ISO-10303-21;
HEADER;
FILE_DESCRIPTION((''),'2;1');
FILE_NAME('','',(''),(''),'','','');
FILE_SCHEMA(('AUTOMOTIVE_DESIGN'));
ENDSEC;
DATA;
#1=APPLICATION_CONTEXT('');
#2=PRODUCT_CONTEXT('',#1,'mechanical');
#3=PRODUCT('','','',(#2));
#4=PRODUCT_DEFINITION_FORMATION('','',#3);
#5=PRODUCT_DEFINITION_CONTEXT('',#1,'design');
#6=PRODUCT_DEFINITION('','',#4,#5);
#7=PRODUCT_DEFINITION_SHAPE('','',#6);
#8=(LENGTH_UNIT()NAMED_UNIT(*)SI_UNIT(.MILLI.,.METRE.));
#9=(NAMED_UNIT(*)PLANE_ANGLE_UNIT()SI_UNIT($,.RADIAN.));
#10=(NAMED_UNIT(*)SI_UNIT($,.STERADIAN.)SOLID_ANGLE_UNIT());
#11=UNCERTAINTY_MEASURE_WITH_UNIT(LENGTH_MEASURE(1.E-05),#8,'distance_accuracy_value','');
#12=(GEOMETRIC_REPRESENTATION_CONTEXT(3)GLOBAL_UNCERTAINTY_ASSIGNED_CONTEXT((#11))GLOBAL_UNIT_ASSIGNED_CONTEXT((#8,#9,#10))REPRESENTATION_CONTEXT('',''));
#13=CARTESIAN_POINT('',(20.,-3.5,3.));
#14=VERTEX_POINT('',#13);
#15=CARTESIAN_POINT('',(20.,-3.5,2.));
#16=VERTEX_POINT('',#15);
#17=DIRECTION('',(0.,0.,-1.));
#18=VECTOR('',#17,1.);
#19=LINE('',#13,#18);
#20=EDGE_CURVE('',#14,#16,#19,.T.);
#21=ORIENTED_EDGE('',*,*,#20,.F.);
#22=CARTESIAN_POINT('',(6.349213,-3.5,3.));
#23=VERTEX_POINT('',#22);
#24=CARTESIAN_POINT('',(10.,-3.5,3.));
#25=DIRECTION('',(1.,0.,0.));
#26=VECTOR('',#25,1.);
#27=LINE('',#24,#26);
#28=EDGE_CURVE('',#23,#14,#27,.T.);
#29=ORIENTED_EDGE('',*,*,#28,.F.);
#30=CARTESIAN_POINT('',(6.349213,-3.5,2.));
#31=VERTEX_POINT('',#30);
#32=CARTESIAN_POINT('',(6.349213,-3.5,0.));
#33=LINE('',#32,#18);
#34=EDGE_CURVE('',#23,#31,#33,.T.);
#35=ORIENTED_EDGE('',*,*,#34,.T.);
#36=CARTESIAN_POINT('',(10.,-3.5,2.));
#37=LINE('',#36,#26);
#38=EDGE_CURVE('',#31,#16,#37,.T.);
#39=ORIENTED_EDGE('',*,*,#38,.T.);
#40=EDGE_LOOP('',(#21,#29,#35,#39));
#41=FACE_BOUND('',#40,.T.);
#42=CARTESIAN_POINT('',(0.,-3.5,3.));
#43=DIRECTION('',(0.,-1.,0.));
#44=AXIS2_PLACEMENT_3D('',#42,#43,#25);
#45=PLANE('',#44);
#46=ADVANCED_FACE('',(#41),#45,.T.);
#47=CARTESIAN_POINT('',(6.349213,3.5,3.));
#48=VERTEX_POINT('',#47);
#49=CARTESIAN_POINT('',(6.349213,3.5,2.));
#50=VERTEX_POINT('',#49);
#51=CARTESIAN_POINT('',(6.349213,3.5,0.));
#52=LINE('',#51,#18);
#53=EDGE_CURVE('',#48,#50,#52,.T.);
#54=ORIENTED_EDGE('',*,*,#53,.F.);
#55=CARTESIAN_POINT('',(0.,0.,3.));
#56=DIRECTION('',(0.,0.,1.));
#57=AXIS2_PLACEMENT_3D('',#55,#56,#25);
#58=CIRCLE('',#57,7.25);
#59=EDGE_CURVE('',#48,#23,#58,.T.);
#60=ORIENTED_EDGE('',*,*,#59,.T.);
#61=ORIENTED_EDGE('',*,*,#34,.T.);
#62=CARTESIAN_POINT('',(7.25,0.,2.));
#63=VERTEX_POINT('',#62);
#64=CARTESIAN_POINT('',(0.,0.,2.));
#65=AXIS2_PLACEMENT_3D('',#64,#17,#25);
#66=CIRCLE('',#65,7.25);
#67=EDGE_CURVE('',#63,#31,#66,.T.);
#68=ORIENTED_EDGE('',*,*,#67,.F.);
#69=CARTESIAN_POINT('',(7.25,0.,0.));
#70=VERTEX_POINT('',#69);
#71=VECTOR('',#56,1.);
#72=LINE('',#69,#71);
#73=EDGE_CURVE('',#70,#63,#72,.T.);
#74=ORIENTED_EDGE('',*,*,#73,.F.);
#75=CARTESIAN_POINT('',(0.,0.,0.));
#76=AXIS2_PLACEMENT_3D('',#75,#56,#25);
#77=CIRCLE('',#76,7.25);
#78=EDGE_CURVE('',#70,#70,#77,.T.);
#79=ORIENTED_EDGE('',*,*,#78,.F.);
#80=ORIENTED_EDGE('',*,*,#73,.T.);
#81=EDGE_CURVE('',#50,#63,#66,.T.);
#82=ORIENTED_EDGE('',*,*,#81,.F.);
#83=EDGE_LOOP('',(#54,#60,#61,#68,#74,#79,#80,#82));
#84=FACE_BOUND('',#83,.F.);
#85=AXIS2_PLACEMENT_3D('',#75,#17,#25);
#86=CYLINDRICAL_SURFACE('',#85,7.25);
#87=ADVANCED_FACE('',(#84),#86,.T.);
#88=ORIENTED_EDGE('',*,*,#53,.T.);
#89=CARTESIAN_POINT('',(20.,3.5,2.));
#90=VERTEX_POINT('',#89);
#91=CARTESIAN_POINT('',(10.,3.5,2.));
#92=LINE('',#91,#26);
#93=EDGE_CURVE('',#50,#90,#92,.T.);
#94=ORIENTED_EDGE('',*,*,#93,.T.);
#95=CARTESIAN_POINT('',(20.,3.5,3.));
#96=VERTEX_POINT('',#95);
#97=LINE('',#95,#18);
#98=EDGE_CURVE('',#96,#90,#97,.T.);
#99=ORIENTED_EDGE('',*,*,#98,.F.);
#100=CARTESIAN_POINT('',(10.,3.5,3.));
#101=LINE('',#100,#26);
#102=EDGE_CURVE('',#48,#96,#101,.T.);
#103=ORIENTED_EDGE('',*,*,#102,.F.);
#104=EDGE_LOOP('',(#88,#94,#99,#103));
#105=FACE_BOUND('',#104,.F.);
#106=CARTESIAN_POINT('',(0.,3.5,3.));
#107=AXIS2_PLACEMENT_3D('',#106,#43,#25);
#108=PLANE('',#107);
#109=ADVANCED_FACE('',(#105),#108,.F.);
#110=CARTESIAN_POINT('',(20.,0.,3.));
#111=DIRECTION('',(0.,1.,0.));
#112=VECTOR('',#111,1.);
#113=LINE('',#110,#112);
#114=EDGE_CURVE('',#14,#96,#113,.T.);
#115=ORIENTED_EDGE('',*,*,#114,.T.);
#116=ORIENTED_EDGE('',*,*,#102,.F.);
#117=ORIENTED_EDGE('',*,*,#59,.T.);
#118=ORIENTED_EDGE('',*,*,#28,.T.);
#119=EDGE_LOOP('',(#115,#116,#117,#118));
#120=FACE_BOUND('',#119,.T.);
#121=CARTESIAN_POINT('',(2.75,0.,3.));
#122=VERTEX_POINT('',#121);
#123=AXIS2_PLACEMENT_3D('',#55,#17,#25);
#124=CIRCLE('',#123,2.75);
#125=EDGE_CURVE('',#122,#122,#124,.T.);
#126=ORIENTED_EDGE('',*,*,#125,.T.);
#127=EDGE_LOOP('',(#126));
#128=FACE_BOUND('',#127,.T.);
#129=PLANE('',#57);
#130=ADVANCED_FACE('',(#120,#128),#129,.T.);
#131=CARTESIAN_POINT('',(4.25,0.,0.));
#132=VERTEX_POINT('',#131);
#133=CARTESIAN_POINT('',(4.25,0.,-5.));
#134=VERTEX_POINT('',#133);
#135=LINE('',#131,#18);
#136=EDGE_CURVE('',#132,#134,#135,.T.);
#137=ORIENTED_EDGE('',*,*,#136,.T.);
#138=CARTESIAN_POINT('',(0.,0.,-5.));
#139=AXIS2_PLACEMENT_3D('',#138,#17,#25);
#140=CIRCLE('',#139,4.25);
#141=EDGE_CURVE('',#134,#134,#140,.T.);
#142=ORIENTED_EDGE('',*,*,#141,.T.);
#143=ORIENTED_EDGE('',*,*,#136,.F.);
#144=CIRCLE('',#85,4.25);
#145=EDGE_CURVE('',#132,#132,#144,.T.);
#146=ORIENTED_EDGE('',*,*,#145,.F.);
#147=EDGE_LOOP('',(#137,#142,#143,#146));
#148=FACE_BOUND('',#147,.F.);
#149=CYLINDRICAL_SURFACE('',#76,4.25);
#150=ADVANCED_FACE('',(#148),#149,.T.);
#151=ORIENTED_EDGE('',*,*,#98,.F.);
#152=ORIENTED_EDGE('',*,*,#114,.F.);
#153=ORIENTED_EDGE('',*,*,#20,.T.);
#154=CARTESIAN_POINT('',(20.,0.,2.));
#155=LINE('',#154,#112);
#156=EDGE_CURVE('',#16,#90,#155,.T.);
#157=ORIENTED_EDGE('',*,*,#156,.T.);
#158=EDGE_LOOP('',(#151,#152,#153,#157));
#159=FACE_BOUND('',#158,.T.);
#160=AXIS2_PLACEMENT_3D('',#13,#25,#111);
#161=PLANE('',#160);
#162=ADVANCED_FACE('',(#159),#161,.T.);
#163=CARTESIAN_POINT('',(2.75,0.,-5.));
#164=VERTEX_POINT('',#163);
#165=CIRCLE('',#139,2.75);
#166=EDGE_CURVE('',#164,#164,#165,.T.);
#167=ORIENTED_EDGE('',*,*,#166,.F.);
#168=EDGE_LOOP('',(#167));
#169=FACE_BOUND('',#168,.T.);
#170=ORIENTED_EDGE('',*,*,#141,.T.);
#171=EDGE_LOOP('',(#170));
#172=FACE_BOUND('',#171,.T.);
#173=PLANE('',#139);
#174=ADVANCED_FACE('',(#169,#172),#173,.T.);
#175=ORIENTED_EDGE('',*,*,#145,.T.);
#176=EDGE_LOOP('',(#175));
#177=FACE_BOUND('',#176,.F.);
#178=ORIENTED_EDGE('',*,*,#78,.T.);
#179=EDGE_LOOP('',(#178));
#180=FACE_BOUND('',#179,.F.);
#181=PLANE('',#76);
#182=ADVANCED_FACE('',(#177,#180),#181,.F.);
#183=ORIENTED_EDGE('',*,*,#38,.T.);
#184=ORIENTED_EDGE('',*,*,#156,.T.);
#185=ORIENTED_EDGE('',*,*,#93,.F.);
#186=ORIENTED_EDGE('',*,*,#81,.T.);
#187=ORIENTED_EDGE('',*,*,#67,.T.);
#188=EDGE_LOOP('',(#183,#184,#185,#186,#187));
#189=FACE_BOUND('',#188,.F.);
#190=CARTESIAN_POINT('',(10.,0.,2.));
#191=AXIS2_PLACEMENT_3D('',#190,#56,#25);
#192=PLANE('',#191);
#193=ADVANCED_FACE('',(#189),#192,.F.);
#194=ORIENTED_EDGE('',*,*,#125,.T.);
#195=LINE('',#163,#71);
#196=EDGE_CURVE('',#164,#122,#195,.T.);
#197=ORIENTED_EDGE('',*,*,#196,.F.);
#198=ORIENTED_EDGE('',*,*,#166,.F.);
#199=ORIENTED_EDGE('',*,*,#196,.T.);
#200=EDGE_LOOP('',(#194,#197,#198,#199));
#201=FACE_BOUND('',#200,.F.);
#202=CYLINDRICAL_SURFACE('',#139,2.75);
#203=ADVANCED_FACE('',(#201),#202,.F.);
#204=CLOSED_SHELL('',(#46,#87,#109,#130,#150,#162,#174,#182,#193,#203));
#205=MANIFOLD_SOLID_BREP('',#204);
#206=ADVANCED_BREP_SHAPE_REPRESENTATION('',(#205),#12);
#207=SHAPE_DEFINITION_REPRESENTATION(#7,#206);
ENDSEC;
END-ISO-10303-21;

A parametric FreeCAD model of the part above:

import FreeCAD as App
import Part
import Sketcher
Q = App.Units.Quantity

doc = App.newDocument("Part")
body = doc.addObject("PartDesign::Body", "Body")

# Sketch on XY plane
sketch1 = body.newObject("Sketcher::SketchObject", "Sketch")
sketch1.AttachmentSupport = (doc.getObject("XY_Plane"), [""])
sketch1.MapMode = "FlatFace"
sketch1.addGeometry(Part.Circle(App.Vector(0, 0, 0), App.Vector(0, 0, 1), 7.25), False)
sketch1.addConstraint([
    Sketcher.Constraint("Coincident", 0, 3, -1, 1),
    Sketcher.Constraint("Diameter", 0, Q("14.5 mm")),
])
pad1 = body.newObject("PartDesign::Pad", "Pad")
pad1.Profile = sketch1
pad1.Length = 3

# Sketch on XY plane
sketch2 = body.newObject("Sketcher::SketchObject", "Sketch001")
sketch2.AttachmentSupport = (doc.getObject("XY_Plane"), [""])
sketch2.MapMode = "FlatFace"
sketch2.AttachmentOffset = App.Placement(App.Vector(0, 0, 3), App.Rotation())
sketch2.addGeometry([
    Part.LineSegment(App.Vector(0, 3.5, 0), App.Vector(0, -3.5, 0)),
    Part.LineSegment(App.Vector(0, -3.5, 0), App.Vector(20, -3.5, 0)),
    Part.LineSegment(App.Vector(20, -3.5, 0), App.Vector(20, 3.5, 0)),
    Part.LineSegment(App.Vector(20, 3.5, 0), App.Vector(0, 3.5, 0)),
], False)
sketch2.addConstraint([
    Sketcher.Constraint("Coincident", 0, 2, 1, 1),
    Sketcher.Constraint("Coincident", 1, 2, 2, 1),
    Sketcher.Constraint("Coincident", 2, 2, 3, 1),
    Sketcher.Constraint("Coincident", 3, 2, 0, 1),
    Sketcher.Constraint("Vertical", 0),
    Sketcher.Constraint("Horizontal", 1),
    Sketcher.Constraint("Vertical", 2),
    Sketcher.Constraint("Horizontal", 3),
    Sketcher.Constraint("Symmetric", 0, 2, 3, 2, -1, 1),
    Sketcher.Constraint("DistanceX", 1, 1, 1, 2, Q("20 mm")),
    Sketcher.Constraint("DistanceY", 0, 2, 0, 1, Q("7 mm")),
])
pad2 = body.newObject("PartDesign::Pad", "Pad001")
pad2.Profile = sketch2
pad2.Length = 1
pad2.Reversed = True

# Sketch on XY plane
sketch3 = body.newObject("Sketcher::SketchObject", "Sketch002")
sketch3.AttachmentSupport = (doc.getObject("XY_Plane"), [""])
sketch3.MapMode = "FlatFace"
sketch3.addGeometry(Part.Circle(App.Vector(0, 0, 0), App.Vector(0, 0, 1), 4.25), False)
sketch3.addConstraint([
    Sketcher.Constraint("Coincident", 0, 3, -1, 1),
    Sketcher.Constraint("Diameter", 0, Q("8.5 mm")),
])
pad3 = body.newObject("PartDesign::Pad", "Pad002")
pad3.Profile = sketch3
pad3.Length = 5
pad3.Reversed = True

# Sketch on XY plane
sketch4 = body.newObject("Sketcher::SketchObject", "Sketch003")
sketch4.AttachmentSupport = (doc.getObject("XY_Plane"), [""])
sketch4.MapMode = "FlatFace"
sketch4.AttachmentOffset = App.Placement(App.Vector(0, 0, -5), App.Rotation())
sketch4.addGeometry(Part.Circle(App.Vector(0, 0, 0), App.Vector(0, 0, 1), 2.75), False)
sketch4.addConstraint([
    Sketcher.Constraint("Coincident", 0, 3, -1, 1),
    Sketcher.Constraint("Diameter", 0, Q("5.5 mm")),
])
pocket1 = body.newObject("PartDesign::Pocket", "Pocket")
pocket1.Profile = sketch4
pocket1.Type = "ThroughAll"
pocket1.Reversed = True

doc.recompute()
